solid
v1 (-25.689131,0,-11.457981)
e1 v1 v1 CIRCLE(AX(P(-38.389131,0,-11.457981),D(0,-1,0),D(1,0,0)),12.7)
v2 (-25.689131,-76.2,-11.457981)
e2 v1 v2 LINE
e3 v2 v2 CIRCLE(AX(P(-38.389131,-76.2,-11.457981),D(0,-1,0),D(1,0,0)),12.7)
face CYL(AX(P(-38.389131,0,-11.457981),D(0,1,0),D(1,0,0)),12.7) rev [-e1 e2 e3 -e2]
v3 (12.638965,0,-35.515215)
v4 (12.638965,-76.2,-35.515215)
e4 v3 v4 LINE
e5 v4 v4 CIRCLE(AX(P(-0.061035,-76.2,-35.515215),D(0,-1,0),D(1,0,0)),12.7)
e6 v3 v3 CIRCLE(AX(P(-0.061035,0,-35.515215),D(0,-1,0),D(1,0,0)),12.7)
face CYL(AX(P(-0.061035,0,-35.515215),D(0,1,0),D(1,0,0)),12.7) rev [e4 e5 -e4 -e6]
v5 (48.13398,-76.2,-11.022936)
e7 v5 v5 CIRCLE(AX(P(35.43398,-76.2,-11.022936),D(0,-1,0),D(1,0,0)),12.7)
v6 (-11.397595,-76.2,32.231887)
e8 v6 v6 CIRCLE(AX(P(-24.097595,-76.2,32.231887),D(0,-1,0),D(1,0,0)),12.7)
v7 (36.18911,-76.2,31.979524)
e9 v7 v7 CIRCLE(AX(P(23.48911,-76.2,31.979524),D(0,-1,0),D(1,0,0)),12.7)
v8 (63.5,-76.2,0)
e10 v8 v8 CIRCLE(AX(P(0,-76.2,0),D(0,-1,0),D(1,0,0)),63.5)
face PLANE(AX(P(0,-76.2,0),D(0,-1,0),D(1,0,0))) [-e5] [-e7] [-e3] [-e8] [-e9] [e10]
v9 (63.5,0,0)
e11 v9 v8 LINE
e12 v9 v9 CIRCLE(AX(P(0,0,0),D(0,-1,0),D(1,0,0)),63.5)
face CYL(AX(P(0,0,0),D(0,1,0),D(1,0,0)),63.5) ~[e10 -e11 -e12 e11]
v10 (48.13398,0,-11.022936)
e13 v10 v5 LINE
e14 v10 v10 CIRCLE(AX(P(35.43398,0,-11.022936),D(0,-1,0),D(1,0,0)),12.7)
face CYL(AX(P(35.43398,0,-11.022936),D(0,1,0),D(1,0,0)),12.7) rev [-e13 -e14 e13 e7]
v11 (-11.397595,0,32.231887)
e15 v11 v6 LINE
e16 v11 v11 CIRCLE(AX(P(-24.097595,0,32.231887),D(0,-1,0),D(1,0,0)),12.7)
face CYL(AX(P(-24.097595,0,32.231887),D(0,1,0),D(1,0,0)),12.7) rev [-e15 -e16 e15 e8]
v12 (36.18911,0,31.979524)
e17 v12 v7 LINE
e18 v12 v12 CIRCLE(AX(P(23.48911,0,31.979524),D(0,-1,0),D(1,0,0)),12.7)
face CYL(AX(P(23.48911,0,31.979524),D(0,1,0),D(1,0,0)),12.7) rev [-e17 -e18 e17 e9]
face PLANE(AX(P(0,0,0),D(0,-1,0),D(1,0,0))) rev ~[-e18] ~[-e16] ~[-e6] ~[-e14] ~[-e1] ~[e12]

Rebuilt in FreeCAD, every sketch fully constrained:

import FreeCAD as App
import Part
import Sketcher

V = App.Vector
Q = App.Units.Quantity

doc = App.newDocument("Part")
body = doc.addObject("PartDesign::Body", "Body")

# Sketch on XZ plane
sketch1 = doc.addObject("Sketcher::SketchObject", "Sketch")
body.addObject(sketch1)
sketch1.AttachmentSupport = (doc.XZ_Plane, [""])
sketch1.MapMode = "FlatFace"
sketch1.addGeometry([
    Part.Circle(V(0, 0, 0), V(0, 0, 1), 63.5),  # 0
    Part.Circle(V(-38.389131, -11.457981, 0), V(0, 0, 1), 12.7),  # 1
    Part.Circle(V(-0.061035, -35.515215, 0), V(0, 0, 1), 12.7),  # 2
    Part.Circle(V(35.43398, -11.022936, 0), V(0, 0, 1), 12.7),  # 3
    Part.Circle(V(-24.097595, 32.231887, 0), V(0, 0, 1), 12.7),  # 4
    Part.Circle(V(23.48911, 31.979524, 0), V(0, 0, 1), 12.7),  # 5
], False)
sketch1.addConstraint([
    Sketcher.Constraint("Coincident", 0, 3, -1, 1),
    Sketcher.Constraint("Equal", 1, 2),
    Sketcher.Constraint("Equal", 2, 3),
    Sketcher.Constraint("Equal", 3, 4),
    Sketcher.Constraint("Equal", 4, 5),
    Sketcher.Constraint("Diameter", 0, Q("5 in")),
    Sketcher.Constraint("Diameter", 1, Q("1 in")),
    Sketcher.Constraint("DistanceY", 2, 3, 4, 3, 67.747102),
    Sketcher.Constraint("DistanceX", 1, 3, -1, 1, 38.389131),
    Sketcher.Constraint("DistanceY", 1, 3, -1, 1, 11.457981),
    Sketcher.Constraint("DistanceX", -1, 1, 3, 3, 35.43398),
    Sketcher.Constraint("DistanceX", -1, 1, 5, 3, 23.48911),
    Sketcher.Constraint("DistanceY", 2, 3, 3, 3, 24.492279),
    Sketcher.Constraint("DistanceY", 1, 3, 4, 3, 43.689868),
    Sketcher.Constraint("DistanceX", 4, 3, 2, 3, 24.03656),
    Sketcher.Constraint("DistanceY", 3, 3, 5, 3, 43.00246),
    Sketcher.Constraint("DistanceX", 2, 3, -1, 1, 0.061035),
])
pad1 = doc.addObject("PartDesign::Pad", "Pad")
body.addObject(pad1)
pad1.Profile = sketch1
pad1.Length = Q("3 in")

doc.recompute()
